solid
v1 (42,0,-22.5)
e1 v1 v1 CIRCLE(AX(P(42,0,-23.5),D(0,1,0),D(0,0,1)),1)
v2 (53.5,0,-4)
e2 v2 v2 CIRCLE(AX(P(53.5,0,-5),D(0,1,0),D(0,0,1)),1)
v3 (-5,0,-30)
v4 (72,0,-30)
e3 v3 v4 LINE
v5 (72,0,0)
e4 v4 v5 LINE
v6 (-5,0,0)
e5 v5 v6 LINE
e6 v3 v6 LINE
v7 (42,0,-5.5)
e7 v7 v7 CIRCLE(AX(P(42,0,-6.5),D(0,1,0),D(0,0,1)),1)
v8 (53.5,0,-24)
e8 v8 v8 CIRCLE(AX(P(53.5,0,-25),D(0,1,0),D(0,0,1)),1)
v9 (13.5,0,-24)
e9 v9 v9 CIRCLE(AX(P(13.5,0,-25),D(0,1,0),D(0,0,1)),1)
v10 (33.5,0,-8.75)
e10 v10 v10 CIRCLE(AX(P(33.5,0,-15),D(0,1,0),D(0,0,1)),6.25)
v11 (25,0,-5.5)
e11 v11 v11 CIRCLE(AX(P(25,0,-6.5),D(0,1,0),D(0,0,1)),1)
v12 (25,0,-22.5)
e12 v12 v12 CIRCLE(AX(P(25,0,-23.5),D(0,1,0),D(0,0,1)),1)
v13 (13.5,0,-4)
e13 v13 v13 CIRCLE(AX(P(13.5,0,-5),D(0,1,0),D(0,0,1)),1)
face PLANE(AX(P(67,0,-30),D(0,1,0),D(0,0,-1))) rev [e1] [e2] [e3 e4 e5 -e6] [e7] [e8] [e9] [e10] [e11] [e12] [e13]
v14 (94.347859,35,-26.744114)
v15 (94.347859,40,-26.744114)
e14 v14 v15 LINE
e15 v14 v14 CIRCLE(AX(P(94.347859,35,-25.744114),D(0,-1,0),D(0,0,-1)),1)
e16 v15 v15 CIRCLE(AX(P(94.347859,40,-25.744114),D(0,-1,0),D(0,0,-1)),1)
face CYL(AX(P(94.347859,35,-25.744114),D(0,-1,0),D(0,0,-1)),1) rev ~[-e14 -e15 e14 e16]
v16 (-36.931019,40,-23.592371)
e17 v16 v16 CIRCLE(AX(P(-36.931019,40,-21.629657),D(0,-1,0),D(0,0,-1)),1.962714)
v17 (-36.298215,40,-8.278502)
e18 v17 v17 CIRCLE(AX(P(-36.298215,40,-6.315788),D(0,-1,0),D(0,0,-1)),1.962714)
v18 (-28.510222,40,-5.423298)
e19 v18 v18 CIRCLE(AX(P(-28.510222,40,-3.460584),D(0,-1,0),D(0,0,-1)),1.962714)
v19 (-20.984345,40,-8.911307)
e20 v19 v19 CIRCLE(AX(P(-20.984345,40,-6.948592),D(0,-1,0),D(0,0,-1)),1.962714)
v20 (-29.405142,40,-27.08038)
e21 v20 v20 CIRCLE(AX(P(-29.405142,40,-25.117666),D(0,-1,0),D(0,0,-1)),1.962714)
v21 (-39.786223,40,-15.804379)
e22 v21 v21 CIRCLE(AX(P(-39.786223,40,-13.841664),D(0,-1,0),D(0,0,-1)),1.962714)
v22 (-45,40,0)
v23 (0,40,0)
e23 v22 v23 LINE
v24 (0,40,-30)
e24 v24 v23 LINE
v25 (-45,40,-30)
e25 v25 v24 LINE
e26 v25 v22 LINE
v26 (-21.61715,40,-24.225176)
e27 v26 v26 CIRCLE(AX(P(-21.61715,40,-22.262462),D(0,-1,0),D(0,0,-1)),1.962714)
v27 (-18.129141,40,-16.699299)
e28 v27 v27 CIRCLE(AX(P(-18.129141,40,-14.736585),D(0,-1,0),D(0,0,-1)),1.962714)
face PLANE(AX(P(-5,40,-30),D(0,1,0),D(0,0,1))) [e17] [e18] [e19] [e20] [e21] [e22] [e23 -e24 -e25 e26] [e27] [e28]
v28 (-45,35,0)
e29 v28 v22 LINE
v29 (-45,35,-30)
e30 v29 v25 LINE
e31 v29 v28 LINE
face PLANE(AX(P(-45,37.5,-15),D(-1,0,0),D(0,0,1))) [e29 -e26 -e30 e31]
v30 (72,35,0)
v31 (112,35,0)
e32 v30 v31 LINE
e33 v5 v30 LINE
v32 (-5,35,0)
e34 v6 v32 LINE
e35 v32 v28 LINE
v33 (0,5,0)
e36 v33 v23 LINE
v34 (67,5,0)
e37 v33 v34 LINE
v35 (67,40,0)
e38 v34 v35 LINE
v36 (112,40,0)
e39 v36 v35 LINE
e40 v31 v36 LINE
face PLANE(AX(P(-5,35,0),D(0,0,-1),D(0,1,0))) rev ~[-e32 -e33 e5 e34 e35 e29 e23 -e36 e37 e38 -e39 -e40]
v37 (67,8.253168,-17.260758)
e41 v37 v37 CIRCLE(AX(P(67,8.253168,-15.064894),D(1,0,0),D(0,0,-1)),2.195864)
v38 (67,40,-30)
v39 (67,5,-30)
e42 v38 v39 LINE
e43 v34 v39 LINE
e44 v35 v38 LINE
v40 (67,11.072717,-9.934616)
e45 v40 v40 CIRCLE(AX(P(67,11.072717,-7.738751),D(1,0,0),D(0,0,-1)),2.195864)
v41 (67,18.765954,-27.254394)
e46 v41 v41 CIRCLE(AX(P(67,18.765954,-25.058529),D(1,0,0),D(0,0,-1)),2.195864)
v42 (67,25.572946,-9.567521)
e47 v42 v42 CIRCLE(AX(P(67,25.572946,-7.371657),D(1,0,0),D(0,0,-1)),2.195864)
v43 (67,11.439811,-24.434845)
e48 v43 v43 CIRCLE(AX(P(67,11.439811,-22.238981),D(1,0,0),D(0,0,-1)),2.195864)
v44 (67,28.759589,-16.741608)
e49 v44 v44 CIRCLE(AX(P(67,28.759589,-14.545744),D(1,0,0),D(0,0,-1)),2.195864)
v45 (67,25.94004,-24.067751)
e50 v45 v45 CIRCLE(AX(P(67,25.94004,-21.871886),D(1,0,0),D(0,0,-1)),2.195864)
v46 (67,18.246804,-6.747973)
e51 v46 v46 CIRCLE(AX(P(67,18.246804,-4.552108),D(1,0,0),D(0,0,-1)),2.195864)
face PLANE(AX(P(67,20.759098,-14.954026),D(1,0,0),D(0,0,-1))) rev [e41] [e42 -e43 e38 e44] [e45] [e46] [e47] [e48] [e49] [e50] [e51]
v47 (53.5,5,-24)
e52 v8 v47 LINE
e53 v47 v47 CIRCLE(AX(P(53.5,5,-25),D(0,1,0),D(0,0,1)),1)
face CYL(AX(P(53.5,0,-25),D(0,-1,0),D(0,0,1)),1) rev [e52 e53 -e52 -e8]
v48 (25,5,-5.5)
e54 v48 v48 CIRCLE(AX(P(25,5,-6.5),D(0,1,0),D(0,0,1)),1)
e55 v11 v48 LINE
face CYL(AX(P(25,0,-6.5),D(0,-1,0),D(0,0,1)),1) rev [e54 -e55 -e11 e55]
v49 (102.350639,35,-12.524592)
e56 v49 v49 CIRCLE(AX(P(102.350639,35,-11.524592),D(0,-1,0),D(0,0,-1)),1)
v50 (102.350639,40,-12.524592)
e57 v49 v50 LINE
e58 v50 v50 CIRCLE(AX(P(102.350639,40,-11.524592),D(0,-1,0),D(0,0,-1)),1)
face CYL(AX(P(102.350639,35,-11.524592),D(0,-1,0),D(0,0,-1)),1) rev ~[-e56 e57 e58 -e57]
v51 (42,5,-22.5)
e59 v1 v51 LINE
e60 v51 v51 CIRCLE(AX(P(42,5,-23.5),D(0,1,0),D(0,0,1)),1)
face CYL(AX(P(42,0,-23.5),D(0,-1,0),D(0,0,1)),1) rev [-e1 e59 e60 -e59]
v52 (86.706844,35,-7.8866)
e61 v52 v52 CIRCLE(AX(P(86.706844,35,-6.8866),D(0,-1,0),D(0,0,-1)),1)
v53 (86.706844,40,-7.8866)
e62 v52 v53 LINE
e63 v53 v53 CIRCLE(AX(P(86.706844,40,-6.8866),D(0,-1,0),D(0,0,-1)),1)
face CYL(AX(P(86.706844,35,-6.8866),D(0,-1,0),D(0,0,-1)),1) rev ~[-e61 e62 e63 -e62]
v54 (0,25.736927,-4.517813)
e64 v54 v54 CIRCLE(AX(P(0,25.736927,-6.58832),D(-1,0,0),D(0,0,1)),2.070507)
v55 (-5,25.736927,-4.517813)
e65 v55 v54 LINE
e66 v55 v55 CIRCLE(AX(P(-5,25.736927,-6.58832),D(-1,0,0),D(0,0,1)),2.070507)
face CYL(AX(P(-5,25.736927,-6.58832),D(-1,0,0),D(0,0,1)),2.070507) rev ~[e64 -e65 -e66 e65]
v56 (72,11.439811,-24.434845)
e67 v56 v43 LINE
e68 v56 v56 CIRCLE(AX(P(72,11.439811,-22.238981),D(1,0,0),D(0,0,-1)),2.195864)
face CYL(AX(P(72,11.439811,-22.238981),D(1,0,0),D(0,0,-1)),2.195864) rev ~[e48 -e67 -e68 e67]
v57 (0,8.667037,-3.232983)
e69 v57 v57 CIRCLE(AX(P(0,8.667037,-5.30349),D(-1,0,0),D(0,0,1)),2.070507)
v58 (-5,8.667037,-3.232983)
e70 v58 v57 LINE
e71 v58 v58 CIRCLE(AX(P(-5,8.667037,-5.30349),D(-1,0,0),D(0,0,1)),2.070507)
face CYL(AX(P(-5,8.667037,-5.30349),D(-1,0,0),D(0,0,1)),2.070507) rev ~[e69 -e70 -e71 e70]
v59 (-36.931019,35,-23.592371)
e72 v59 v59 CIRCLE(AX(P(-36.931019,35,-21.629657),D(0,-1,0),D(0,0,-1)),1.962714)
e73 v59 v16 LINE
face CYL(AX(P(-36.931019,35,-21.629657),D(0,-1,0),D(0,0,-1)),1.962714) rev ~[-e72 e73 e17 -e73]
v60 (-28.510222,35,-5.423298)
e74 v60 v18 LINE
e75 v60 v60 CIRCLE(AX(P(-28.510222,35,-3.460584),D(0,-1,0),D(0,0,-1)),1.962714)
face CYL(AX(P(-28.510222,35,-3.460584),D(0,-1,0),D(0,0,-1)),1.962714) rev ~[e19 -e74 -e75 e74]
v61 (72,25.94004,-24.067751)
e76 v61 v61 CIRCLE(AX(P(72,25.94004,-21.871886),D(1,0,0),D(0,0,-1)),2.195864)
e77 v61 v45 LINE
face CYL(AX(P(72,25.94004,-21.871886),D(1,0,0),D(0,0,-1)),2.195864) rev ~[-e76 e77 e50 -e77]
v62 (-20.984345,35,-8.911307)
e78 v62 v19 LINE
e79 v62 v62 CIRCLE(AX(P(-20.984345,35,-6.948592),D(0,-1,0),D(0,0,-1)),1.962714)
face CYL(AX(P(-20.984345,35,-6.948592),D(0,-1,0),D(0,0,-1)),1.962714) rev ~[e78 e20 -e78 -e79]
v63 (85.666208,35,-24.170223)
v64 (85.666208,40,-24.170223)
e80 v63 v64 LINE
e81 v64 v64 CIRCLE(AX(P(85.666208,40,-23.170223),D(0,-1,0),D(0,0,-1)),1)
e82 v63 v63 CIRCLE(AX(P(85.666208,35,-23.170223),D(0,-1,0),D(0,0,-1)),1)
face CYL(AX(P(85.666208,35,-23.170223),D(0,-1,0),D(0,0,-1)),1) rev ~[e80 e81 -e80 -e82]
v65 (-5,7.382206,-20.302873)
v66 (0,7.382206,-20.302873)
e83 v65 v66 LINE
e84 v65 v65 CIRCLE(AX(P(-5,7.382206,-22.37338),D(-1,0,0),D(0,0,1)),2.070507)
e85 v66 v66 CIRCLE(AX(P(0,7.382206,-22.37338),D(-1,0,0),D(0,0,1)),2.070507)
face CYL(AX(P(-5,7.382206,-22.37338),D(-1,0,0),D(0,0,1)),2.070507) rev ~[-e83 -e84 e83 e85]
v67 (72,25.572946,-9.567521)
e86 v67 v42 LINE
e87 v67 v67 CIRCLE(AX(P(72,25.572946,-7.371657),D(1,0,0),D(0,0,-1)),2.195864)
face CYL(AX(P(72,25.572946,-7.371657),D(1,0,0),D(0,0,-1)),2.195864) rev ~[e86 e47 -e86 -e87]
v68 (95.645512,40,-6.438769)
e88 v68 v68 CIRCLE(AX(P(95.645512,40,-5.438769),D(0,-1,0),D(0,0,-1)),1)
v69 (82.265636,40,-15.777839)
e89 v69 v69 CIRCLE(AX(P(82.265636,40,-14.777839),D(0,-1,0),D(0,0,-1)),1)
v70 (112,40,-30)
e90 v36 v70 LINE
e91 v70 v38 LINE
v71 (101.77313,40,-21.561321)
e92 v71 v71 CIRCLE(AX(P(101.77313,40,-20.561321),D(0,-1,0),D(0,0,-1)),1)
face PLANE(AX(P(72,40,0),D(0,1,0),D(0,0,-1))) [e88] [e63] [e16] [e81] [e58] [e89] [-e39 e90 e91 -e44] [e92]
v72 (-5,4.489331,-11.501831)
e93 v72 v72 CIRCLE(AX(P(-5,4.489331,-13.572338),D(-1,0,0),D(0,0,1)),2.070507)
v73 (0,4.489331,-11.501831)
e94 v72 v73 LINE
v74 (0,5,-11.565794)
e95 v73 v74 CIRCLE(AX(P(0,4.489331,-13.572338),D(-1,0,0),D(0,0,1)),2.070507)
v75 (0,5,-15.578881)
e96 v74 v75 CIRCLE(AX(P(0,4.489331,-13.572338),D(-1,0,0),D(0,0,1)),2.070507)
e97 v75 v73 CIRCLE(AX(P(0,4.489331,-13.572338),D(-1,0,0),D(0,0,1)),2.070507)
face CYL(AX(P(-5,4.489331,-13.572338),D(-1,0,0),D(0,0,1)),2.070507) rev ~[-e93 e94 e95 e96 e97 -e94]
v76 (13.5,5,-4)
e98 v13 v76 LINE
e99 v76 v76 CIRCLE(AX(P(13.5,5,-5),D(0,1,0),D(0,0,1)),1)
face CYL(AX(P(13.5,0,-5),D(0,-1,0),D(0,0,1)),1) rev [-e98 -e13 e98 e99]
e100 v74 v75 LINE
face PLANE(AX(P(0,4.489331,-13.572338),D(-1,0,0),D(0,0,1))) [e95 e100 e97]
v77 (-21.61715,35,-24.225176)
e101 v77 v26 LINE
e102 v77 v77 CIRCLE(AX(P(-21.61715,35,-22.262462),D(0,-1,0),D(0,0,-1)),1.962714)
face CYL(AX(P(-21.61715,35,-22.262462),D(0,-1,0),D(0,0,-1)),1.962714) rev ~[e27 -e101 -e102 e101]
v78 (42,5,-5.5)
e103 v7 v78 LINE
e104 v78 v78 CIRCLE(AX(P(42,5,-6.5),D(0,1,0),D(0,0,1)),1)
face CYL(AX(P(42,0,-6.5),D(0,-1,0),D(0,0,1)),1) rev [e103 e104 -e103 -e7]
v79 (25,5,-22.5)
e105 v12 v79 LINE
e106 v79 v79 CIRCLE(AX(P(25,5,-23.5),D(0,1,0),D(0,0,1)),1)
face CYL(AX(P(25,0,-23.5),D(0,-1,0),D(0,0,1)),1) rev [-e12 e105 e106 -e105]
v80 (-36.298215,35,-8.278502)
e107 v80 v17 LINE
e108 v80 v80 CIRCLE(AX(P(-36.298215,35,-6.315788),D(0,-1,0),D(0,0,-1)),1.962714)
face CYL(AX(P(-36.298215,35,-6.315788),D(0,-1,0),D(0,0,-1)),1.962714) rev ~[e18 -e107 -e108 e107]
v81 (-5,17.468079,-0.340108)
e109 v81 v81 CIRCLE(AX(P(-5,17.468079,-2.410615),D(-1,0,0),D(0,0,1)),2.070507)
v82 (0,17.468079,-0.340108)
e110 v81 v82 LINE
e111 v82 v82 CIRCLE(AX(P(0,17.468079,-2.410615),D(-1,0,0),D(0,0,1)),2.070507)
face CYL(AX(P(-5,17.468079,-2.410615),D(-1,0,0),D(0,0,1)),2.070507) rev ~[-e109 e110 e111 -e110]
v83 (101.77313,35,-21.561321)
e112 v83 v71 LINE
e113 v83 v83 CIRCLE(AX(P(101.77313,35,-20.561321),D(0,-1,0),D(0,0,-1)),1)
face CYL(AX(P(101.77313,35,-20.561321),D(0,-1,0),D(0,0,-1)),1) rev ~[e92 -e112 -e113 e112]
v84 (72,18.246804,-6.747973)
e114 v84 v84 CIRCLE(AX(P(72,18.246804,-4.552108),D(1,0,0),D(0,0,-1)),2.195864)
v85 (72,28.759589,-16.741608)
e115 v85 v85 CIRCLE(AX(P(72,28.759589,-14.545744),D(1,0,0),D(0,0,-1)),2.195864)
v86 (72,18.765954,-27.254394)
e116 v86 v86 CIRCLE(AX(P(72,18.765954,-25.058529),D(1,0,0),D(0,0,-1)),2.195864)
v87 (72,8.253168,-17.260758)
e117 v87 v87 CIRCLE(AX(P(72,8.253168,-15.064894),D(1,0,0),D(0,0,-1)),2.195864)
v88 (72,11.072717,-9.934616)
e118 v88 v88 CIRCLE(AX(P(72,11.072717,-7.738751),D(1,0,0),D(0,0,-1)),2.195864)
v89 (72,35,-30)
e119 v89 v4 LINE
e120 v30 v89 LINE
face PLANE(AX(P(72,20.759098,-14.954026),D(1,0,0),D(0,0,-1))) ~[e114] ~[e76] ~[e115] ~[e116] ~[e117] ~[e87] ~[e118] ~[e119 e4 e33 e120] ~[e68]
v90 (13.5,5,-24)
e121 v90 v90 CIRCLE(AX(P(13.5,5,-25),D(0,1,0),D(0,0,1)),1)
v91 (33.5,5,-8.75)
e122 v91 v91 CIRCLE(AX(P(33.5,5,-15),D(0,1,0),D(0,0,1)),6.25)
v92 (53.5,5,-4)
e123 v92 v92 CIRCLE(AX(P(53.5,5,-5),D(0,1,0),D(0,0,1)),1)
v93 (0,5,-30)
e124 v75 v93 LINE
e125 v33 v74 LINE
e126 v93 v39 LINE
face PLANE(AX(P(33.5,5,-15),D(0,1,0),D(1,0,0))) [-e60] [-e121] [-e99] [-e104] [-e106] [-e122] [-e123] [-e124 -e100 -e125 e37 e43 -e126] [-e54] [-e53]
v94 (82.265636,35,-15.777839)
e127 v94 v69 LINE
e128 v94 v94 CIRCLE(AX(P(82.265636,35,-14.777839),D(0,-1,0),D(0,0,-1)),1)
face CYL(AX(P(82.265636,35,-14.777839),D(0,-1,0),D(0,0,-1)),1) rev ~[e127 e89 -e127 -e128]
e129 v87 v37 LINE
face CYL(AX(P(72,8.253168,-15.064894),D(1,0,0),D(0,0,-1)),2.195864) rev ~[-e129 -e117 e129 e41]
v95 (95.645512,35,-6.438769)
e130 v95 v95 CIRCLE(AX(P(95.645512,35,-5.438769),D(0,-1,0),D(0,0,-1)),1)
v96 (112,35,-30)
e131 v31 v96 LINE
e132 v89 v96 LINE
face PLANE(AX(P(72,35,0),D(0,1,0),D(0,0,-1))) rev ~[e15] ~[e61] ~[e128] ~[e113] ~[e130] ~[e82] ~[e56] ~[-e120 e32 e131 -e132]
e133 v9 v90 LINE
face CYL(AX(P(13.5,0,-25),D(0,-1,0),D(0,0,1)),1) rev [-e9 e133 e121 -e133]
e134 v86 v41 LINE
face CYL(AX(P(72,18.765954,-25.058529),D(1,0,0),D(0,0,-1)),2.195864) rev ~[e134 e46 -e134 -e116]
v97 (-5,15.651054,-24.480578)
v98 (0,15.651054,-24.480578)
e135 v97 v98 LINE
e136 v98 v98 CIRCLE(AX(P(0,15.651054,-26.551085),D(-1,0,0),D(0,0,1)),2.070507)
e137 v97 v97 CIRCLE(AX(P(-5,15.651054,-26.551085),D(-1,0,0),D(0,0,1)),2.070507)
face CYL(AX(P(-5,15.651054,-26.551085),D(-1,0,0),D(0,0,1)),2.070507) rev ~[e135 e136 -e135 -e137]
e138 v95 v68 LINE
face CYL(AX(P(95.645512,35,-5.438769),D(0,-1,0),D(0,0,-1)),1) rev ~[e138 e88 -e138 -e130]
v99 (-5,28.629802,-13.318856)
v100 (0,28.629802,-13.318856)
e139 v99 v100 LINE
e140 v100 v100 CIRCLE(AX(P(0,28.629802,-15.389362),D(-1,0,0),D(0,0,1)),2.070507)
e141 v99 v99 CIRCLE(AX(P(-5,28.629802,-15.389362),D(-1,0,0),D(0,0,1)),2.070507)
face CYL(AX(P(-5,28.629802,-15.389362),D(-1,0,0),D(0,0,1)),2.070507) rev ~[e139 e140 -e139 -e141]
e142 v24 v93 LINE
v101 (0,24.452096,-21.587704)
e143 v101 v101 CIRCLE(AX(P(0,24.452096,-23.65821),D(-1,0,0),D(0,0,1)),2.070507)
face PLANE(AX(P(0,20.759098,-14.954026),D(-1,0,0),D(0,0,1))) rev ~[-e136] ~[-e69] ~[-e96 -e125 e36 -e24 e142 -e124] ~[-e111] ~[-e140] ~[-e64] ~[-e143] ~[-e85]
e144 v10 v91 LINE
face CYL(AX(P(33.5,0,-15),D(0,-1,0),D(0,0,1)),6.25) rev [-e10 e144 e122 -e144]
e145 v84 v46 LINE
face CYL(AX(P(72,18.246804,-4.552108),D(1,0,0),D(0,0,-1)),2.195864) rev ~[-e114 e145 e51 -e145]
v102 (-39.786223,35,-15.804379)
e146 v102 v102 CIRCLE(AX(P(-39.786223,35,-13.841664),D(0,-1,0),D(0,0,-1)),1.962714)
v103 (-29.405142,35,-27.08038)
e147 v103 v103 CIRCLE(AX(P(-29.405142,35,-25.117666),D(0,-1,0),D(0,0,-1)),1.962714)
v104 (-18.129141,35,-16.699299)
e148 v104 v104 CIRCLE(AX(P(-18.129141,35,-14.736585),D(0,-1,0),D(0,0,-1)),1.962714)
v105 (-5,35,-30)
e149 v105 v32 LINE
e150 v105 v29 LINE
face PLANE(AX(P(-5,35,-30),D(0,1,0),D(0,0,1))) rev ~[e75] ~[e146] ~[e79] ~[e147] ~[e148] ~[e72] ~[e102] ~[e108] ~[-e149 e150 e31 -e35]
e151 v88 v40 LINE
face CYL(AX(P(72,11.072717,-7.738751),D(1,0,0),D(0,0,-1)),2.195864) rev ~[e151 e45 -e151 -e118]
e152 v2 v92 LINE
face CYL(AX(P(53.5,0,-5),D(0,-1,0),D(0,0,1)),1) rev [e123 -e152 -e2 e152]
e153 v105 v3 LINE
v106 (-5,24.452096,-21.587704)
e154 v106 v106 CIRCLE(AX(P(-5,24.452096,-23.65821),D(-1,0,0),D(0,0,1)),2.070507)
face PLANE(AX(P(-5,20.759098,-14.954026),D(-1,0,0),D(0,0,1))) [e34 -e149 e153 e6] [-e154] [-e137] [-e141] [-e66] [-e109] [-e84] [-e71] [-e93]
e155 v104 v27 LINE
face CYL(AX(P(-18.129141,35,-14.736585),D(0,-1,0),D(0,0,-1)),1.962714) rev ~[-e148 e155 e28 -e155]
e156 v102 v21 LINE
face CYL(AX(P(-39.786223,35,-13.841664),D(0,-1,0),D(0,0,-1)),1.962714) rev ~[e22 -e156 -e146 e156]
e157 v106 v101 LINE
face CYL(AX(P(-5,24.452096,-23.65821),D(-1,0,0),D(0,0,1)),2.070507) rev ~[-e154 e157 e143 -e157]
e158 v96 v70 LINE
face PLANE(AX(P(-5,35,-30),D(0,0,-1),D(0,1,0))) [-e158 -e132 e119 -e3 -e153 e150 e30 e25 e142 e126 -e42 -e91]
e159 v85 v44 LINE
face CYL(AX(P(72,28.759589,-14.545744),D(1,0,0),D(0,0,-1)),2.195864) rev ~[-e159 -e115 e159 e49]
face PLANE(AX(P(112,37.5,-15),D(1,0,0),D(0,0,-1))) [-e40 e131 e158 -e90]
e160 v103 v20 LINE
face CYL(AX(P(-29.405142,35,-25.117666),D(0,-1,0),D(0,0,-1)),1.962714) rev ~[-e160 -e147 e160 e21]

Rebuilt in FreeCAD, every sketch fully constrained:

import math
import FreeCAD as App
import Part
import Sketcher


def add_polygon(sketch, points):
    """Adds a closed chain of lines whose ends are joined by coincident constraints."""
    first, n = sketch.GeometryCount, len(points)
    for a, b in zip(points, points[1:] + points[:1]):
        sketch.addGeometry(Part.LineSegment(App.Vector(*a, 0), App.Vector(*b, 0)), False)
    for i in range(n):
        sketch.addConstraint(Sketcher.Constraint("Coincident", first + i, 2, first + (i + 1) % n, 1))

doc = App.newDocument("Part")
params = doc.addObject("Spreadsheet::Sheet", "Params")
for row, (alias, value) in enumerate([
    ("sketch1_width", "40 mm"),
    ("sketch1_height", "30 mm"),
    ("pad1_length", "5 mm"),
    ("sketch2_diameter", "2 mm"),
    ("sketch2_diameter2", "12.5 mm"),
    ("sketch2_width", "67 mm"),
    ("sketch2_height", "30 mm"),
    ("pad2_length", "5 mm"),
    ("sketch3_width", "40 mm"),
    ("sketch3_height", "30 mm"),
    ("pad3_length", "5 mm"),
    ("sketch4_width", "40 mm"),
    ("sketch4_height", "30 mm"),
    ("pad4_length", "5 mm"),
    ("sketch5_width", "5 mm"),
    ("sketch5_height", "30 mm"),
    ("pad5_length", "40 mm"),
    ("sketch6_width", "5 mm"),
    ("sketch6_height", "30 mm"),
    ("pad6_length", "40 mm"),
    ("pocket1_length", "5 mm"),
    ("sketch8_diameter", "2 mm"),
    ("pocket2_length", "5 mm"),
    ("pocket3_length", "5 mm"),
    ("pocket4_length", "5 mm"),
], start=1):
    params.set(f"A{row}", alias)
    params.set(f"B{row}", "=" + value)
    params.setAlias(f"B{row}", alias)

body = doc.addObject("PartDesign::Body", "Body")

sketch1 = doc.addObject("Sketcher::SketchObject", "Sketch")
body.addObject(sketch1)
sketch1.AttachmentSupport = (doc.YZ_Plane, [""])
sketch1.MapMode = "FlatFace"
sketch1.addGeometry(Part.LineSegment(App.Vector(0, 0, 0), App.Vector(0, -30, 0)), False)
sketch1.addGeometry(Part.LineSegment(App.Vector(0, -30, 0), App.Vector(40, -30, 0)), False)
sketch1.addGeometry(Part.LineSegment(App.Vector(40, -30, 0), App.Vector(40, -21, 0)), False)
sketch1.addGeometry(Part.ArcOfCircle(Part.Circle(App.Vector(37.1, -14.5, 0), App.Vector(0, 0, 1), 7.1), math.radians(66), math.radians(294)), False)
sketch1.addGeometry(Part.LineSegment(App.Vector(40, -8, 0), App.Vector(40, 0, 0)), False)
sketch1.addGeometry(Part.LineSegment(App.Vector(40, 0, 0), App.Vector(0, 0, 0)), False)
sketch1.addGeometry(Part.Circle(App.Vector(27.4, -22.5, 0), App.Vector(0, 0, 1), 2.2), False)
sketch1.addGeometry(Part.Circle(App.Vector(24.2, -14.5, 0), App.Vector(0, 0, 1), 2.2), False)
sketch1.addGeometry(Part.Circle(App.Vector(27.7, -6.6, 0), App.Vector(0, 0, 1), 2.2), False)
sketch1.addGeometry(Part.Circle(App.Vector(35.3, -25.9, 0), App.Vector(0, 0, 1), 2.2), False)
sketch1.addGeometry(Part.Circle(App.Vector(35.6, -3.4, 0), App.Vector(0, 0, 1), 2.2), False)
sketch1.addConstraint(Sketcher.Constraint("Coincident", 0, 2, 1, 1))
sketch1.addConstraint(Sketcher.Constraint("Coincident", 1, 2, 2, 1))
sketch1.addConstraint(Sketcher.Constraint("Coincident", 2, 2, 3, 2))
sketch1.addConstraint(Sketcher.Constraint("Coincident", 3, 1, 4, 1))
sketch1.addConstraint(Sketcher.Constraint("Coincident", 4, 2, 5, 1))
sketch1.addConstraint(Sketcher.Constraint("Coincident", 5, 2, 0, 1))
sketch1.addConstraint(Sketcher.Constraint("Vertical", 0))
sketch1.addConstraint(Sketcher.Constraint("Horizontal", 1))
sketch1.addConstraint(Sketcher.Constraint("Vertical", 2))
sketch1.addConstraint(Sketcher.Constraint("Vertical", 4))
sketch1.addConstraint(Sketcher.Constraint("Horizontal", 5))
sketch1.addConstraint(Sketcher.Constraint("Coincident", 5, 2, -1, 1))
sketch1.addConstraint(Sketcher.Constraint("Equal", 6, 7))
sketch1.addConstraint(Sketcher.Constraint("Equal", 7, 8))
sketch1.addConstraint(Sketcher.Constraint("Equal", 8, 9))
sketch1.addConstraint(Sketcher.Constraint("Equal", 9, 10))
sketch1.addConstraint(Sketcher.Constraint("Horizontal", 3, 3, 7, 3))
sketch1.addConstraint(Sketcher.Constraint("Vertical", 2, 2, 3, 1))
sketch1.addConstraint(Sketcher.Constraint("DistanceX", 1, 1, 1, 2, 40.0))
sketch1.addConstraint(Sketcher.Constraint("DistanceY", 0, 2, 0, 1, 30.0))
sketch1.addConstraint(Sketcher.Constraint("Radius", 3, 7.117602))
sketch1.addConstraint(Sketcher.Constraint("Diameter", 6, 4.492239))
sketch1.addConstraint(Sketcher.Constraint("DistanceX", -1, 1, 3, 3, 37.117602))
sketch1.addConstraint(Sketcher.Constraint("DistanceY", 2, 1, 2, 2, 9.023717))
sketch1.addConstraint(Sketcher.Constraint("DistanceY", 8, 3, -1, 1, 6.578912))
sketch1.addConstraint(Sketcher.Constraint("DistanceX", -1, 1, 10, 3, 35.645772))
sketch1.addConstraint(Sketcher.Constraint("DistanceY", 10, 3, -1, 1, 3.414371))
sketch1.addConstraint(Sketcher.Constraint("DistanceX", 7, 3, 6, 3, 3.16454))
sketch1.addConstraint(Sketcher.Constraint("DistanceX", 7, 3, 8, 3, 3.414191))
sketch1.addConstraint(Sketcher.Constraint("DistanceY", 9, 3, 6, 3, 3.414191))
sketch1.addConstraint(Sketcher.Constraint("DistanceX", 9, 3, 3, 3, 1.824889))
sketch1.addConstraint(Sketcher.Constraint("DistanceY", 6, 3, 2, 2, 1.485092))
sketch1.addConstraint(Sketcher.Constraint("DistanceX", -1, 1, 6, 3, 27.403185))
sketch1.setExpression("Constraints[18]", "Params.sketch1_width")
sketch1.setExpression("Constraints[19]", "Params.sketch1_height")
pad1 = doc.addObject("PartDesign::Pad", "Pad")
body.addObject(pad1)
pad1.Profile = sketch1
pad1.setExpression("Length", "Params.pad1_length")
pad1.Reversed = True

sketch2 = doc.addObject("Sketcher::SketchObject", "Sketch001")
body.addObject(sketch2)
sketch2.AttachmentSupport = (doc.XZ_Plane, [""])
sketch2.MapMode = "FlatFace"
add_polygon(sketch2, [(0, -30), (0, 0), (67, 0), (67, -30)])
sketch2.addGeometry(Part.Circle(App.Vector(13.5, -5, 0), App.Vector(0, 0, 1), 1), False)
sketch2.addGeometry(Part.Circle(App.Vector(25, -6.5, 0), App.Vector(0, 0, 1), 1), False)
sketch2.addGeometry(Part.Circle(App.Vector(42, -6.5, 0), App.Vector(0, 0, 1), 1), False)
sketch2.addGeometry(Part.Circle(App.Vector(53.5, -5, 0), App.Vector(0, 0, 1), 1), False)
sketch2.addGeometry(Part.Circle(App.Vector(13.5, -25, 0), App.Vector(0, 0, 1), 1), False)
sketch2.addGeometry(Part.Circle(App.Vector(25, -23.5, 0), App.Vector(0, 0, 1), 1), False)
sketch2.addGeometry(Part.Circle(App.Vector(33.5, -15, 0), App.Vector(0, 0, 1), 6.2), False)
sketch2.addGeometry(Part.Circle(App.Vector(42, -23.5, 0), App.Vector(0, 0, 1), 1), False)
sketch2.addGeometry(Part.Circle(App.Vector(53.5, -25, 0), App.Vector(0, 0, 1), 1), False)
sketch2.addConstraint(Sketcher.Constraint("Vertical", 0))
sketch2.addConstraint(Sketcher.Constraint("Horizontal", 1))
sketch2.addConstraint(Sketcher.Constraint("Vertical", 2))
sketch2.addConstraint(Sketcher.Constraint("Horizontal", 3))
sketch2.addConstraint(Sketcher.Constraint("Coincident", 0, 2, -1, 1))
sketch2.addConstraint(Sketcher.Constraint("Equal", 4, 5))
sketch2.addConstraint(Sketcher.Constraint("Equal", 5, 6))
sketch2.addConstraint(Sketcher.Constraint("Equal", 6, 7))
sketch2.addConstraint(Sketcher.Constraint("Equal", 7, 8))
sketch2.addConstraint(Sketcher.Constraint("Equal", 8, 9))
sketch2.addConstraint(Sketcher.Constraint("Equal", 9, 11))
sketch2.addConstraint(Sketcher.Constraint("Equal", 11, 12))
sketch2.addConstraint(Sketcher.Constraint("Horizontal", 5, 3, 6, 3))
sketch2.addConstraint(Sketcher.Constraint("Horizontal", 4, 3, 7, 3))
sketch2.addConstraint(Sketcher.Constraint("Horizontal", 9, 3, 11, 3))
sketch2.addConstraint(Sketcher.Constraint("Horizontal", 8, 3, 12, 3))
sketch2.addConstraint(Sketcher.Constraint("Vertical", 4, 3, 8, 3))
sketch2.addConstraint(Sketcher.Constraint("Vertical", 5, 3, 9, 3))
sketch2.addConstraint(Sketcher.Constraint("Vertical", 6, 3, 11, 3))
sketch2.addConstraint(Sketcher.Constraint("Vertical", 7, 3, 12, 3))
sketch2.addConstraint(Sketcher.Constraint("Diameter", 4, 2.0))
sketch2.addConstraint(Sketcher.Constraint("Diameter", 10, 12.5))
sketch2.addConstraint(Sketcher.Constraint("DistanceX", 1, 1, 1, 2, 67.0))
sketch2.addConstraint(Sketcher.Constraint("DistanceY", 0, 1, 0, 2, 30.0))
sketch2.addConstraint(Sketcher.Constraint("DistanceY", 4, 3, -1, 1, 5.0))
sketch2.addConstraint(Sketcher.Constraint("DistanceX", -1, 1, 5, 3, 25.0))
sketch2.addConstraint(Sketcher.Constraint("DistanceX", -1, 1, 6, 3, 42.0))
sketch2.addConstraint(Sketcher.Constraint("DistanceY", 8, 3, -1, 1, 25.0))
sketch2.addConstraint(Sketcher.Constraint("DistanceY", 10, 3, -1, 1, 15.0))
sketch2.addConstraint(Sketcher.Constraint("DistanceX", 4, 3, 7, 3, 40.0))
sketch2.addConstraint(Sketcher.Constraint("DistanceY", 9, 3, 5, 3, 17.0))
sketch2.addConstraint(Sketcher.Constraint("DistanceX", 4, 3, 10, 3, 20.0))
sketch2.addConstraint(Sketcher.Constraint("DistanceX", -1, 1, 4, 3, 13.5))
sketch2.addConstraint(Sketcher.Constraint("DistanceY", 5, 3, -1, 1, 6.5))
sketch2.setExpression("Constraints[24]", "Params.sketch2_diameter")
sketch2.setExpression("Constraints[25]", "Params.sketch2_diameter2")
sketch2.setExpression("Constraints[26]", "Params.sketch2_width")
sketch2.setExpression("Constraints[27]", "Params.sketch2_height")
pad2 = doc.addObject("PartDesign::Pad", "Pad001")
body.addObject(pad2)
pad2.Profile = sketch2
pad2.setExpression("Length", "Params.pad2_length")
pad2.Reversed = True
doc.recompute()

datumplane = doc.addObject("PartDesign::Plane", "DatumPlane")
body.addObject(datumplane)
datumplane.AttachmentSupport = (doc.YZ_Plane, [""])
datumplane.MapMode = "FlatFace"
datumplane.AttachmentOffset = App.Placement(App.Vector(0, 0, 33.5), App.Rotation())
mirrored = doc.addObject("PartDesign::Mirrored", "Mirrored")
body.addObject(mirrored)
mirrored.Originals = [pad1]
mirrored.MirrorPlane = (datumplane, [""])
body.Tip = mirrored

sketch3 = doc.addObject("Sketcher::SketchObject", "Sketch002")
body.addObject(sketch3)
sketch3.AttachmentSupport = (doc.YZ_Plane, [""])
sketch3.MapMode = "FlatFace"
sketch3.AttachmentOffset = App.Placement(App.Vector(0, 0, -5), App.Rotation())
add_polygon(sketch3, [(40, -30), (0, -30), (0, 0), (40, 0)])
sketch3.addConstraint(Sketcher.Constraint("Horizontal", 0))
sketch3.addConstraint(Sketcher.Constraint("Vertical", 1))
sketch3.addConstraint(Sketcher.Constraint("Horizontal", 2))
sketch3.addConstraint(Sketcher.Constraint("Vertical", 3))
sketch3.addConstraint(Sketcher.Constraint("Coincident", 1, 2, -1, 1))
sketch3.addConstraint(Sketcher.Constraint("DistanceX", 0, 2, 0, 1, 40.0))
sketch3.addConstraint(Sketcher.Constraint("DistanceY", 1, 1, 1, 2, 30.0))
sketch3.setExpression("Constraints[9]", "Params.sketch3_width")
sketch3.setExpression("Constraints[10]", "Params.sketch3_height")
pad3 = doc.addObject("PartDesign::Pad", "Pad002")
body.addObject(pad3)
pad3.Profile = sketch3
pad3.setExpression("Length", "Params.pad3_length")

sketch4 = doc.addObject("Sketcher::SketchObject", "Sketch003")
body.addObject(sketch4)
sketch4.AttachmentSupport = (doc.YZ_Plane, [""])
sketch4.MapMode = "FlatFace"
sketch4.AttachmentOffset = App.Placement(App.Vector(0, 0, 72), App.Rotation())
add_polygon(sketch4, [(40, 0), (0, 0), (0, -30), (40, -30)])
sketch4.addConstraint(Sketcher.Constraint("Horizontal", 0))
sketch4.addConstraint(Sketcher.Constraint("Vertical", 1))
sketch4.addConstraint(Sketcher.Constraint("Horizontal", 2))
sketch4.addConstraint(Sketcher.Constraint("Vertical", 3))
sketch4.addConstraint(Sketcher.Constraint("Coincident", 0, 2, -1, 1))
sketch4.addConstraint(Sketcher.Constraint("DistanceX", 0, 2, 0, 1, 40.0))
sketch4.addConstraint(Sketcher.Constraint("DistanceY", 1, 2, 1, 1, 30.0))
sketch4.setExpression("Constraints[9]", "Params.sketch4_width")
sketch4.setExpression("Constraints[10]", "Params.sketch4_height")
pad4 = doc.addObject("PartDesign::Pad", "Pad003")
body.addObject(pad4)
pad4.Profile = sketch4
pad4.setExpression("Length", "Params.pad4_length")
pad4.Reversed = True

sketch5 = doc.addObject("Sketcher::SketchObject", "Sketch004")
body.addObject(sketch5)
sketch5.AttachmentSupport = (doc.YZ_Plane, [""])
sketch5.MapMode = "FlatFace"
sketch5.AttachmentOffset = App.Placement(App.Vector(0, 0, 72), App.Rotation())
add_polygon(sketch5, [(40, 0), (35, 0), (35, -30), (40, -30)])
sketch5.addConstraint(Sketcher.Constraint("Horizontal", 0))
sketch5.addConstraint(Sketcher.Constraint("Vertical", 1))
sketch5.addConstraint(Sketcher.Constraint("Horizontal", 2))
sketch5.addConstraint(Sketcher.Constraint("Vertical", 3))
sketch5.addConstraint(Sketcher.Constraint("PointOnObject", 0, 2, -1))
sketch5.addConstraint(Sketcher.Constraint("DistanceX", 0, 2, 0, 1, 5.0))
sketch5.addConstraint(Sketcher.Constraint("DistanceY", 1, 2, 1, 1, 30.0))
sketch5.addConstraint(Sketcher.Constraint("DistanceX", -1, 1, 0, 2, 35.0))
sketch5.setExpression("Constraints[9]", "Params.sketch5_width")
sketch5.setExpression("Constraints[10]", "Params.sketch5_height")
pad5 = doc.addObject("PartDesign::Pad", "Pad004")
body.addObject(pad5)
pad5.Profile = sketch5
pad5.setExpression("Length", "Params.pad5_length")

sketch6 = doc.addObject("Sketcher::SketchObject", "Sketch005")
body.addObject(sketch6)
sketch6.AttachmentSupport = (doc.YZ_Plane, [""])
sketch6.MapMode = "FlatFace"
sketch6.AttachmentOffset = App.Placement(App.Vector(0, 0, -5), App.Rotation())
add_polygon(sketch6, [(40, -30), (35, -30), (35, 0), (40, 0)])
sketch6.addConstraint(Sketcher.Constraint("Horizontal", 0))
sketch6.addConstraint(Sketcher.Constraint("Vertical", 1))
sketch6.addConstraint(Sketcher.Constraint("Horizontal", 2))
sketch6.addConstraint(Sketcher.Constraint("Vertical", 3))
sketch6.addConstraint(Sketcher.Constraint("PointOnObject", 1, 2, -1))
sketch6.addConstraint(Sketcher.Constraint("DistanceX", 0, 2, 0, 1, 5.0))
sketch6.addConstraint(Sketcher.Constraint("DistanceY", 1, 1, 1, 2, 30.0))
sketch6.addConstraint(Sketcher.Constraint("DistanceX", -1, 1, 0, 2, 35.0))
sketch6.setExpression("Constraints[9]", "Params.sketch6_width")
sketch6.setExpression("Constraints[10]", "Params.sketch6_height")
pad6 = doc.addObject("PartDesign::Pad", "Pad005")
body.addObject(pad6)
pad6.Profile = sketch6
pad6.setExpression("Length", "Params.pad6_length")
pad6.Reversed = True

sketch7 = doc.addObject("Sketcher::SketchObject", "Sketch006")
body.addObject(sketch7)
sketch7.AttachmentSupport = (doc.YZ_Plane, [""])
sketch7.MapMode = "FlatFace"
sketch7.AttachmentOffset = App.Placement(App.Vector(0, 0, 72), App.Rotation())
sketch7.addGeometry(Part.Circle(App.Vector(18.2, -4.6, 0), App.Vector(0, 0, 1), 2.2), False)
sketch7.addGeometry(Part.Circle(App.Vector(11.1, -7.7, 0), App.Vector(0, 0, 1), 2.2), False)
sketch7.addGeometry(Part.Circle(App.Vector(8.3, -15.1, 0), App.Vector(0, 0, 1), 2.2), False)
sketch7.addGeometry(Part.Circle(App.Vector(11.4, -22.2, 0), App.Vector(0, 0, 1), 2.2), False)
sketch7.addGeometry(Part.Circle(App.Vector(18.8, -25.1, 0), App.Vector(0, 0, 1), 2.2), False)
sketch7.addGeometry(Part.Circle(App.Vector(25.9, -21.9, 0), App.Vector(0, 0, 1), 2.2), False)
sketch7.addGeometry(Part.Circle(App.Vector(28.8, -14.5, 0), App.Vector(0, 0, 1), 2.2), False)
sketch7.addGeometry(Part.Circle(App.Vector(25.6, -7.4, 0), App.Vector(0, 0, 1), 2.2), False)
sketch7.addConstraint(Sketcher.Constraint("Equal", 0, 1))
sketch7.addConstraint(Sketcher.Constraint("Equal", 1, 2))
sketch7.addConstraint(Sketcher.Constraint("Equal", 2, 3))
sketch7.addConstraint(Sketcher.Constraint("Equal", 3, 4))
sketch7.addConstraint(Sketcher.Constraint("Equal", 4, 5))
sketch7.addConstraint(Sketcher.Constraint("Equal", 5, 6))
sketch7.addConstraint(Sketcher.Constraint("Equal", 6, 7))
sketch7.addConstraint(Sketcher.Constraint("Diameter", 0, 4.391729))
sketch7.addConstraint(Sketcher.Constraint("DistanceY", 0, 3, -1, 1, 4.552108))
sketch7.addConstraint(Sketcher.Constraint("DistanceY", 1, 3, -1, 1, 7.738751))
sketch7.addConstraint(Sketcher.Constraint("DistanceX", -1, 1, 2, 3, 8.253168))
sketch7.addConstraint(Sketcher.Constraint("DistanceX", -1, 1, 3, 3, 11.439811))
sketch7.addConstraint(Sketcher.Constraint("DistanceY", 3, 3, -1, 1, 22.238981))
sketch7.addConstraint(Sketcher.Constraint("DistanceY", 4, 3, -1, 1, 25.058529))
sketch7.addConstraint(Sketcher.Constraint("DistanceX", -1, 1, 5, 3, 25.94004))
sketch7.addConstraint(Sketcher.Constraint("DistanceX", -1, 1, 6, 3, 28.759589))
sketch7.addConstraint(Sketcher.Constraint("DistanceX", 2, 3, 1, 3, 2.819549))
sketch7.addConstraint(Sketcher.Constraint("DistanceX", 0, 3, 4, 3, 0.51915))
sketch7.addConstraint(Sketcher.Constraint("DistanceY", 7, 3, 0, 3, 2.819549))
sketch7.addConstraint(Sketcher.Constraint("DistanceX", 1, 3, 7, 3, 14.500229))
sketch7.addConstraint(Sketcher.Constraint("DistanceY", 5, 3, 7, 3, 14.500229))
sketch7.addConstraint(Sketcher.Constraint("DistanceX", -1, 1, 0, 3, 18.246804))
sketch7.addConstraint(Sketcher.Constraint("DistanceY", 2, 3, -1, 1, 15.064894))
sketch7.addConstraint(Sketcher.Constraint("DistanceY", 6, 3, -1, 1, 14.545744))
pocket1 = doc.addObject("PartDesign::Pocket", "Pocket")
body.addObject(pocket1)
pocket1.Profile = sketch7
pocket1.setExpression("Length", "Params.pocket1_length")

sketch8 = doc.addObject("Sketcher::SketchObject", "Sketch007")
body.addObject(sketch8)
sketch8.AttachmentSupport = (doc.XZ_Plane, [""])
sketch8.MapMode = "FlatFace"
sketch8.AttachmentOffset = App.Placement(App.Vector(0, 0, -35), App.Rotation())
sketch8.addGeometry(Part.Circle(App.Vector(82.3, -14.8, 0), App.Vector(0, 0, 1), 1), False)
sketch8.addGeometry(Part.Circle(App.Vector(85.7, -23.2, 0), App.Vector(0, 0, 1), 1), False)
sketch8.addGeometry(Part.Circle(App.Vector(94.3, -25.7, 0), App.Vector(0, 0, 1), 1), False)
sketch8.addGeometry(Part.Circle(App.Vector(101.8, -20.6, 0), App.Vector(0, 0, 1), 1), False)
sketch8.addGeometry(Part.Circle(App.Vector(102.4, -11.5, 0), App.Vector(0, 0, 1), 1), False)
sketch8.addGeometry(Part.Circle(App.Vector(95.6, -5.4, 0), App.Vector(0, 0, 1), 1), False)
sketch8.addGeometry(Part.Circle(App.Vector(86.7, -6.9, 0), App.Vector(0, 0, 1), 1), False)
sketch8.addConstraint(Sketcher.Constraint("Equal", 0, 1))
sketch8.addConstraint(Sketcher.Constraint("Equal", 1, 2))
sketch8.addConstraint(Sketcher.Constraint("Equal", 2, 3))
sketch8.addConstraint(Sketcher.Constraint("Equal", 3, 4))
sketch8.addConstraint(Sketcher.Constraint("Equal", 4, 5))
sketch8.addConstraint(Sketcher.Constraint("Equal", 5, 6))
sketch8.addConstraint(Sketcher.Constraint("Diameter", 0, 2.0))
sketch8.addConstraint(Sketcher.Constraint("DistanceY", 6, 3, -1, 1, 6.8866))
sketch8.addConstraint(Sketcher.Constraint("DistanceY", 1, 3, 3, 3, 2.608902))
sketch8.addConstraint(Sketcher.Constraint("DistanceY", 0, 3, -1, 1, 14.777839))
sketch8.addConstraint(Sketcher.Constraint("DistanceX", -1, 1, 2, 3, 94.347859))
sketch8.addConstraint(Sketcher.Constraint("DistanceX", -1, 1, 3, 3, 101.77313))
sketch8.addConstraint(Sketcher.Constraint("DistanceY", 3, 3, -1, 1, 20.561321))
sketch8.addConstraint(Sketcher.Constraint("DistanceX", -1, 1, 4, 3, 102.350639))
sketch8.addConstraint(Sketcher.Constraint("DistanceX", -1, 1, 5, 3, 95.645512))
sketch8.addConstraint(Sketcher.Constraint("DistanceY", 5, 3, -1, 1, 5.438769))
sketch8.addConstraint(Sketcher.Constraint("DistanceX", 0, 3, 1, 3, 3.400572))
sketch8.addConstraint(Sketcher.Constraint("DistanceX", 1, 3, 2, 3, 8.681651))
sketch8.addConstraint(Sketcher.Constraint("DistanceY", 2, 3, 1, 3, 2.573892))
sketch8.addConstraint(Sketcher.Constraint("DistanceY", 3, 3, 4, 3, 9.036729))
sketch8.addConstraint(Sketcher.Constraint("DistanceX", -1, 1, 6, 3, 86.706844))
sketch8.setExpression("Constraints[6]", "Params.sketch8_diameter")
pocket2 = doc.addObject("PartDesign::Pocket", "Pocket001")
body.addObject(pocket2)
pocket2.Profile = sketch8
pocket2.setExpression("Length", "Params.pocket2_length")

sketch9 = doc.addObject("Sketcher::SketchObject", "Sketch008")
body.addObject(sketch9)
sketch9.AttachmentSupport = (doc.YZ_Plane, [""])
sketch9.MapMode = "FlatFace"
sketch9.AttachmentOffset = App.Placement(App.Vector(0, 0, -5), App.Rotation())
sketch9.addGeometry(Part.Circle(App.Vector(28.6, -15.4, 0), App.Vector(0, 0, 1), 2.1), False)
sketch9.addGeometry(Part.Circle(App.Vector(24.5, -23.7, 0), App.Vector(0, 0, 1), 2.1), False)
sketch9.addGeometry(Part.Circle(App.Vector(15.7, -26.6, 0), App.Vector(0, 0, 1), 2.1), False)
sketch9.addGeometry(Part.Circle(App.Vector(7.4, -22.4, 0), App.Vector(0, 0, 1), 2.1), False)
sketch9.addGeometry(Part.Circle(App.Vector(4.5, -13.6, 0), App.Vector(0, 0, 1), 2.1), False)
sketch9.addGeometry(Part.Circle(App.Vector(8.7, -5.3, 0), App.Vector(0, 0, 1), 2.1), False)
sketch9.addGeometry(Part.Circle(App.Vector(17.5, -2.4, 0), App.Vector(0, 0, 1), 2.1), False)
sketch9.addGeometry(Part.Circle(App.Vector(25.7, -6.6, 0), App.Vector(0, 0, 1), 2.1), False)
sketch9.addConstraint(Sketcher.Constraint("Equal", 0, 1))
sketch9.addConstraint(Sketcher.Constraint("Equal", 1, 2))
sketch9.addConstraint(Sketcher.Constraint("Equal", 2, 3))
sketch9.addConstraint(Sketcher.Constraint("Equal", 3, 4))
sketch9.addConstraint(Sketcher.Constraint("Equal", 4, 5))
sketch9.addConstraint(Sketcher.Constraint("Equal", 5, 6))
sketch9.addConstraint(Sketcher.Constraint("Equal", 6, 7))
sketch9.addConstraint(Sketcher.Constraint("Diameter", 0, 4.141014))
sketch9.addConstraint(Sketcher.Constraint("DistanceX", -1, 1, 0, 3, 28.629802))
sketch9.addConstraint(Sketcher.Constraint("DistanceY", 1, 3, -1, 1, 23.65821))
sketch9.addConstraint(Sketcher.Constraint("DistanceY", 3, 3, -1, 1, 22.37338))
sketch9.addConstraint(Sketcher.Constraint("DistanceX", -1, 1, 4, 3, 4.489331))
sketch9.addConstraint(Sketcher.Constraint("DistanceY", 5, 3, -1, 1, 5.30349))
sketch9.addConstraint(Sketcher.Constraint("DistanceX", -1, 1, 6, 3, 17.468079))
sketch9.addConstraint(Sketcher.Constraint("DistanceY", 7, 3, -1, 1, 6.58832))
sketch9.addConstraint(Sketcher.Constraint("DistanceX", 3, 3, 1, 3, 17.06989))
sketch9.addConstraint(Sketcher.Constraint("DistanceX", 3, 3, 5, 3, 1.28483))
sketch9.addConstraint(Sketcher.Constraint("DistanceX", 1, 3, 7, 3, 1.28483))
sketch9.addConstraint(Sketcher.Constraint("DistanceY", 0, 3, -1, 1, 15.389362))
sketch9.addConstraint(Sketcher.Constraint("DistanceX", -1, 1, 1, 3, 24.452096))
sketch9.addConstraint(Sketcher.Constraint("DistanceX", -1, 1, 2, 3, 15.651054))
sketch9.addConstraint(Sketcher.Constraint("DistanceY", 2, 3, -1, 1, 26.551085))
sketch9.addConstraint(Sketcher.Constraint("DistanceY", 4, 3, -1, 1, 13.572338))
sketch9.addConstraint(Sketcher.Constraint("DistanceY", 6, 3, -1, 1, 2.410615))
pocket3 = doc.addObject("PartDesign::Pocket", "Pocket002")
body.addObject(pocket3)
pocket3.Profile = sketch9
pocket3.setExpression("Length", "Params.pocket3_length")
pocket3.Reversed = True

sketch10 = doc.addObject("Sketcher::SketchObject", "Sketch009")
body.addObject(sketch10)
sketch10.AttachmentSupport = (doc.XZ_Plane, [""])
sketch10.MapMode = "FlatFace"
sketch10.AttachmentOffset = App.Placement(App.Vector(0, 0, -35), App.Rotation())
sketch10.addGeometry(Part.Circle(App.Vector(-39.8, -13.8, 0), App.Vector(0, 0, 1), 2), False)
sketch10.addGeometry(Part.Circle(App.Vector(-36.3, -6.3, 0), App.Vector(0, 0, 1), 2), False)
sketch10.addGeometry(Part.Circle(App.Vector(-28.5, -3.5, 0), App.Vector(0, 0, 1), 2), False)
sketch10.addGeometry(Part.Circle(App.Vector(-21, -6.9, 0), App.Vector(0, 0, 1), 2), False)
sketch10.addGeometry(Part.Circle(App.Vector(-18.1, -14.7, 0), App.Vector(0, 0, 1), 2), False)
sketch10.addGeometry(Part.Circle(App.Vector(-21.6, -22.3, 0), App.Vector(0, 0, 1), 2), False)
sketch10.addGeometry(Part.Circle(App.Vector(-29.4, -25.1, 0), App.Vector(0, 0, 1), 2), False)
sketch10.addGeometry(Part.Circle(App.Vector(-36.9, -21.6, 0), App.Vector(0, 0, 1), 2), False)
sketch10.addConstraint(Sketcher.Constraint("Equal", 0, 1))
sketch10.addConstraint(Sketcher.Constraint("Equal", 1, 2))
sketch10.addConstraint(Sketcher.Constraint("Equal", 2, 3))
sketch10.addConstraint(Sketcher.Constraint("Equal", 3, 4))
sketch10.addConstraint(Sketcher.Constraint("Equal", 4, 5))
sketch10.addConstraint(Sketcher.Constraint("Equal", 5, 6))
sketch10.addConstraint(Sketcher.Constraint("Equal", 6, 7))
sketch10.addConstraint(Sketcher.Constraint("Diameter", 0, 3.925429))
sketch10.addConstraint(Sketcher.Constraint("DistanceX", 0, 3, 2, 3, 11.276001))
sketch10.addConstraint(Sketcher.Constraint("DistanceY", 4, 3, 2, 3, 11.276001))
sketch10.addConstraint(Sketcher.Constraint("DistanceX", 6, 3, 4, 3, 11.276001))
sketch10.addConstraint(Sketcher.Constraint("DistanceY", 6, 3, 0, 3, 11.276001))
sketch10.addConstraint(Sketcher.Constraint("DistanceX", 2, 3, -1, 1, 28.510222))
sketch10.addConstraint(Sketcher.Constraint("DistanceX", 4, 3, -1, 1, 18.129141))
sketch10.addConstraint(Sketcher.Constraint("DistanceX", 5, 3, -1, 1, 21.61715))
sketch10.addConstraint(Sketcher.Constraint("DistanceY", 5, 3, -1, 1, 22.262462))
sketch10.addConstraint(Sketcher.Constraint("DistanceX", 7, 3, -1, 1, 36.931019))
sketch10.addConstraint(Sketcher.Constraint("DistanceX", 0, 3, 1, 3, 3.488008))
sketch10.addConstraint(Sketcher.Constraint("DistanceY", 0, 3, 2, 3, 10.38108))
sketch10.addConstraint(Sketcher.Constraint("DistanceY", 3, 3, 2, 3, 3.488008))
sketch10.addConstraint(Sketcher.Constraint("DistanceX", 1, 3, 3, 3, 15.313869))
sketch10.addConstraint(Sketcher.Constraint("DistanceY", 5, 3, 3, 3, 15.313869))
sketch10.addConstraint(Sketcher.Constraint("DistanceY", 6, 3, 7, 3, 3.488008))
sketch10.addConstraint(Sketcher.Constraint("DistanceY", 7, 3, 1, 3, 15.313869))
pocket4 = doc.addObject("PartDesign::Pocket", "Pocket003")
body.addObject(pocket4)
pocket4.Profile = sketch10
pocket4.setExpression("Length", "Params.pocket4_length")

doc.recompute()
